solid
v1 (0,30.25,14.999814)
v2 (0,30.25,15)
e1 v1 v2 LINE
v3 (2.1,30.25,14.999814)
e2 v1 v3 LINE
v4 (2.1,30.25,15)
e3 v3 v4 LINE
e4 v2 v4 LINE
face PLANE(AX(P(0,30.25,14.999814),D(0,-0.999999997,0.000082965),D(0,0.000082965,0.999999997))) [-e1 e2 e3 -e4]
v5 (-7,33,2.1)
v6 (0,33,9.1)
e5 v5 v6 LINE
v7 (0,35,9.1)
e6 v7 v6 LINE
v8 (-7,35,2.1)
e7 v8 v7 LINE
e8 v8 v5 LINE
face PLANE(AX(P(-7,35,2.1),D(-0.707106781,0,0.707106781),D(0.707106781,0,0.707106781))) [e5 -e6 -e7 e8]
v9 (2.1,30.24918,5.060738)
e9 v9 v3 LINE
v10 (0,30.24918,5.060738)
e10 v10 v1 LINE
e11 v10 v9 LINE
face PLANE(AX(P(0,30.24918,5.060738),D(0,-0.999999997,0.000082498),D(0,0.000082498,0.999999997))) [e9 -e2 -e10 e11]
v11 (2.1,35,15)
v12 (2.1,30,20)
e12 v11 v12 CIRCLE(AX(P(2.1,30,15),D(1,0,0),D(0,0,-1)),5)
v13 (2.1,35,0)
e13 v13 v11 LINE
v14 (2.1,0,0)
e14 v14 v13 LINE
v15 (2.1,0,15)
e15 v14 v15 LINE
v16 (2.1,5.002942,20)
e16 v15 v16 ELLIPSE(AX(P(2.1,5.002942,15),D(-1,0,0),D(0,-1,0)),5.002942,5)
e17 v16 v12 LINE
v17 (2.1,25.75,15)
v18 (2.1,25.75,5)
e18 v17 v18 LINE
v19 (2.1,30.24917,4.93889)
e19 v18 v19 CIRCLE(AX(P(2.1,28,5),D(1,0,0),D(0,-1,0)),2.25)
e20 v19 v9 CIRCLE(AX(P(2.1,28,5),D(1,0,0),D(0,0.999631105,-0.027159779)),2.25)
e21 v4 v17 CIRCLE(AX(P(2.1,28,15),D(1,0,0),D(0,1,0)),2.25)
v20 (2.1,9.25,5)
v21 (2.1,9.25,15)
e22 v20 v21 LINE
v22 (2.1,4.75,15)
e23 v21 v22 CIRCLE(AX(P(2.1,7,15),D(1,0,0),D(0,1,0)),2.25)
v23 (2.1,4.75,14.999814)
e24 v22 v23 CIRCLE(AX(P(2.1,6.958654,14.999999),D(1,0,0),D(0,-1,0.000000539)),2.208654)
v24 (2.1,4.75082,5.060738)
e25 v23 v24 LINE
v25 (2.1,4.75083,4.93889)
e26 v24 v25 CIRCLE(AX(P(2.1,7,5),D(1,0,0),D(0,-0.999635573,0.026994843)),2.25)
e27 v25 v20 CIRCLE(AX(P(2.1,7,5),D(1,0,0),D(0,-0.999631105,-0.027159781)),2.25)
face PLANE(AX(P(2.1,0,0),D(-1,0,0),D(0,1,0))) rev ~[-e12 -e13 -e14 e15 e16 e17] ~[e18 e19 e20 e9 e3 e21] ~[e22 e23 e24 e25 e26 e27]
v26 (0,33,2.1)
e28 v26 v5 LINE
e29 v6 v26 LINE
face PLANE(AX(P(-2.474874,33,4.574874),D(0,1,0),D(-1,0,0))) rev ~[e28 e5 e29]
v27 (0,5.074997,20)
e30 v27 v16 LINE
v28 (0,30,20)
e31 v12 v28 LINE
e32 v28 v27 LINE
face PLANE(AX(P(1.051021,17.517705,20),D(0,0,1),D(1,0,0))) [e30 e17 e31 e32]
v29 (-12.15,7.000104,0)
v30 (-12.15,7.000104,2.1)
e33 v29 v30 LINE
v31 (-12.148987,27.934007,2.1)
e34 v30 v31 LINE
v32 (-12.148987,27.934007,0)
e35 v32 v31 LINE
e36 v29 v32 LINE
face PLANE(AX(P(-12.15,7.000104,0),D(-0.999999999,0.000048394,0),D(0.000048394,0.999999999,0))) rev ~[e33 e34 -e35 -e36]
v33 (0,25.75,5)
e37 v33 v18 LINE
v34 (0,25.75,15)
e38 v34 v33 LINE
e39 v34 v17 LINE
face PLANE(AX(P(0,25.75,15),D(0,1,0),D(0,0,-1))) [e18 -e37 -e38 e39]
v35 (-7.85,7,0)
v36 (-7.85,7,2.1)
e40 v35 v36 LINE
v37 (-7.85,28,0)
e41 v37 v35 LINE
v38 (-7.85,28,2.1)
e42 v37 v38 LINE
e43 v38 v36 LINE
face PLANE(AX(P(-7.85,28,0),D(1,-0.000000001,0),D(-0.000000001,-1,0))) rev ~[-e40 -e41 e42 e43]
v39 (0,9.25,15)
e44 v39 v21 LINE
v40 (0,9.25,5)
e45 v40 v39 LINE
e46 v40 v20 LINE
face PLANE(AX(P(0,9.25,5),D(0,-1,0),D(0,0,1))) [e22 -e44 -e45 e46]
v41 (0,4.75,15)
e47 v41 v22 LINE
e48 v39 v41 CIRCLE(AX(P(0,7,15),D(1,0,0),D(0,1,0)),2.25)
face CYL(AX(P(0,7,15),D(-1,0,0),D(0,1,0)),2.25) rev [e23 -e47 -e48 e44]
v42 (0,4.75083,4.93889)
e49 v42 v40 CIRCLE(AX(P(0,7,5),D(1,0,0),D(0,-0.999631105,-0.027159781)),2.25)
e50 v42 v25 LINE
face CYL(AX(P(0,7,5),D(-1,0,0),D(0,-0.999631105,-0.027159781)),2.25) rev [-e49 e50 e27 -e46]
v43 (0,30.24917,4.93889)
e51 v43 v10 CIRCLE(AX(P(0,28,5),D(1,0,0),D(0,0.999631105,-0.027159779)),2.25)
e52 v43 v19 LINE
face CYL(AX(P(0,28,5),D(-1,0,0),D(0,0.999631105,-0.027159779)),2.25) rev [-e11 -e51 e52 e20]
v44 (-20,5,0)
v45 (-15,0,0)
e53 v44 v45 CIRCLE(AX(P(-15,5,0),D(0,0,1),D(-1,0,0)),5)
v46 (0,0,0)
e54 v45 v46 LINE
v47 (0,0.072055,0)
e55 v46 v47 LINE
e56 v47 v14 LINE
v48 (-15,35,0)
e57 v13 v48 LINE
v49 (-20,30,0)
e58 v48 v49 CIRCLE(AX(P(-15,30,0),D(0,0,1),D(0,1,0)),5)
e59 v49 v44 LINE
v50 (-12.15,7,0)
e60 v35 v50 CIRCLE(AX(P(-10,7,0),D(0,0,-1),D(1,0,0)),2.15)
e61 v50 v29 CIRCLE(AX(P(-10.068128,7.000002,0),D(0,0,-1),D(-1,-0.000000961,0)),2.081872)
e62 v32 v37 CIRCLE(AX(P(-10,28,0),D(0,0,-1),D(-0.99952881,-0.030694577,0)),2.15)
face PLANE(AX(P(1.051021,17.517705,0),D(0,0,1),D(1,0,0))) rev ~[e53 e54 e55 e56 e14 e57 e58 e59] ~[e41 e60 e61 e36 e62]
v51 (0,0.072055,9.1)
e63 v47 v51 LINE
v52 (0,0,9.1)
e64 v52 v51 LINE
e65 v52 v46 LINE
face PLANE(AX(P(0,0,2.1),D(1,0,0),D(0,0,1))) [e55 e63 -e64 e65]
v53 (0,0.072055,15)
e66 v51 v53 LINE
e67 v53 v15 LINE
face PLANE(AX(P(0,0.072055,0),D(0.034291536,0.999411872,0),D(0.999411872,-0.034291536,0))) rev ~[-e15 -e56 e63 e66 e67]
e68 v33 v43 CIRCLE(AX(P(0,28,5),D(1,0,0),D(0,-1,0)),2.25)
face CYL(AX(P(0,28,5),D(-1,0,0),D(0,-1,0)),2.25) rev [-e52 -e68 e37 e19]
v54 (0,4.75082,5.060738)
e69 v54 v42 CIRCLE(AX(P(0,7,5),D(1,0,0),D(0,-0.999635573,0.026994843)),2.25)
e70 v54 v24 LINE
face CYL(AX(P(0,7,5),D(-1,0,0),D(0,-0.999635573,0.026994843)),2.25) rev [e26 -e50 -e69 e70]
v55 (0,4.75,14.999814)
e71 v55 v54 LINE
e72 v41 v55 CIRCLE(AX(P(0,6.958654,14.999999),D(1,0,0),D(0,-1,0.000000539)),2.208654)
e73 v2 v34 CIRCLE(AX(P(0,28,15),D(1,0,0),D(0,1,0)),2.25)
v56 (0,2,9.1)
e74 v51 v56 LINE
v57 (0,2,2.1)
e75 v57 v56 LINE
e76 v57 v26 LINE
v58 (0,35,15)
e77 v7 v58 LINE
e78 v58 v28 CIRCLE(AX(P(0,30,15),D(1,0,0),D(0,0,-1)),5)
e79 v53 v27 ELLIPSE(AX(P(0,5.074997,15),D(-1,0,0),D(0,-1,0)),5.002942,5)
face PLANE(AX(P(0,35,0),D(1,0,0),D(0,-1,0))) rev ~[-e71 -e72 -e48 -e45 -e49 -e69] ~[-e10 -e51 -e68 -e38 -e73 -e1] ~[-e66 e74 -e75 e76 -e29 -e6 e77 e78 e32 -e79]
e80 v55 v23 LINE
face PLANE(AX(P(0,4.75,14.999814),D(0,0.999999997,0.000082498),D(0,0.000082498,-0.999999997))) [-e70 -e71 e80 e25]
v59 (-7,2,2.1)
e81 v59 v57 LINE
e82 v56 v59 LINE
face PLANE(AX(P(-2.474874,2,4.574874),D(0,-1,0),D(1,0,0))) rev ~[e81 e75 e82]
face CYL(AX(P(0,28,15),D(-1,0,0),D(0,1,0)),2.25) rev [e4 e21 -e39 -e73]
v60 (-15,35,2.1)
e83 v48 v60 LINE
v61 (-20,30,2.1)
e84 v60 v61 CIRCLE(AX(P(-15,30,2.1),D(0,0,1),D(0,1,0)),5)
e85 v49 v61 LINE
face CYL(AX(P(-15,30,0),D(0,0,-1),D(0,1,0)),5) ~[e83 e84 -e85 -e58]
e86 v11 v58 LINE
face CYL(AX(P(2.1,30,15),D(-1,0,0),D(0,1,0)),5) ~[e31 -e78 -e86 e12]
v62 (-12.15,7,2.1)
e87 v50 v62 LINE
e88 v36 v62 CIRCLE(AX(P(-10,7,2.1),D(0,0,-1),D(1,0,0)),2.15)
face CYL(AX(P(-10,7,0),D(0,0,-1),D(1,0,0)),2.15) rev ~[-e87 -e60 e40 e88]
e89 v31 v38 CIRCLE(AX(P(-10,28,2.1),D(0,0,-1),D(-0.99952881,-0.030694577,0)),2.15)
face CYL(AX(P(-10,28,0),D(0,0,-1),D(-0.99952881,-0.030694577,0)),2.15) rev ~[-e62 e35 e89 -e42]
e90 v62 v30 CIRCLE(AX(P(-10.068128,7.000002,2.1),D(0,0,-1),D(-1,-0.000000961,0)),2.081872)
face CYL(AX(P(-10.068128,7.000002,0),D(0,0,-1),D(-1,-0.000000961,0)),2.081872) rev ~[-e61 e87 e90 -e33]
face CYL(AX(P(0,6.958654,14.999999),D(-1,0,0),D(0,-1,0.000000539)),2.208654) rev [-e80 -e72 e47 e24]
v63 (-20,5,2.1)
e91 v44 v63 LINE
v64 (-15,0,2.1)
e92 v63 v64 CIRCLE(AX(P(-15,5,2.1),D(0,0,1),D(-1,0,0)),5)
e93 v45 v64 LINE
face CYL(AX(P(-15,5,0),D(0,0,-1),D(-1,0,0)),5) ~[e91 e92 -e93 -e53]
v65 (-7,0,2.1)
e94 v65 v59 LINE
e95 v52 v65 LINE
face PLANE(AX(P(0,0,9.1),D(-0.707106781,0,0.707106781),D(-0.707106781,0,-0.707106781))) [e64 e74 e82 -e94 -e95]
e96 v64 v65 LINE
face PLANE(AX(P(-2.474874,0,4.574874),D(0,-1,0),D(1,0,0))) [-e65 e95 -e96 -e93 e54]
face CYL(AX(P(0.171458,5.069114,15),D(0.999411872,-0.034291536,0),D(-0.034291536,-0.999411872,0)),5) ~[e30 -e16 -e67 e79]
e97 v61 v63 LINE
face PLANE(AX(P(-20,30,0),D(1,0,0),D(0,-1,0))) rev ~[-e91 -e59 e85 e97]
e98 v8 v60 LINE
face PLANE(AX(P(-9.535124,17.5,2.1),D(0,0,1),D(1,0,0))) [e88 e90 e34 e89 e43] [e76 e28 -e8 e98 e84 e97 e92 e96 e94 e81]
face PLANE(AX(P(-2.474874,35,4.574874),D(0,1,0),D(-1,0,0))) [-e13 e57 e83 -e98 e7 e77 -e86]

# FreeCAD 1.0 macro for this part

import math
import FreeCAD as App
import Part
import Sketcher
Q = App.Units.Quantity


def edges_at(feature, points):
    """Names of the edges that pass closest to the given points."""
    edges = feature.Shape.Edges
    near = lambda p: min(range(len(edges)), key=lambda i: edges[i].distToShape(Part.Vertex(*p))[0])
    return sorted({f"Edge{near(p) + 1}" for p in points})

doc = App.newDocument("Part")
body = doc.addObject("PartDesign::Body", "Body")

# Sketch on XY plane
sketch1 = body.newObject("Sketcher::SketchObject", "Sketch")
sketch1.AttachmentSupport = (doc.getObject("XY_Plane"), [""])
sketch1.MapMode = "FlatFace"
sketch1.addGeometry(Part.LineSegment(App.Vector(-15, 0, 0), App.Vector(0, 0, 0)), False)
sketch1.addGeometry(Part.LineSegment(App.Vector(0, 0, 0), App.Vector(0, 35, 0)), False)
sketch1.addGeometry(Part.LineSegment(App.Vector(0, 35, 0), App.Vector(-15, 35, 0)), False)
sketch1.addGeometry(Part.ArcOfCircle(Part.Circle(App.Vector(-15, 30, 0), App.Vector(0, 0, 1), 5), math.radians(90), math.radians(180)), False)
sketch1.addGeometry(Part.LineSegment(App.Vector(-20, 30, 0), App.Vector(-20, 5, 0)), False)
sketch1.addGeometry(Part.ArcOfCircle(Part.Circle(App.Vector(-15, 5, 0), App.Vector(0, 0, 1), 5), math.radians(180), math.radians(270)), False)
sketch1.addGeometry(Part.LineSegment(App.Vector(-12.15, 7.000104, 0), App.Vector(-12.148987, 27.934007, 0)), False)
sketch1.addGeometry(Part.ArcOfCircle(Part.Circle(App.Vector(-10, 28, 0), App.Vector(0, 0, 1), 2.15), math.radians(0), math.radians(181.758946)), False)
sketch1.addGeometry(Part.LineSegment(App.Vector(-7.85, 28, 0), App.Vector(-7.85, 7, 0)), False)
sketch1.addGeometry(Part.ArcOfCircle(Part.Circle(App.Vector(-10, 7, 0), App.Vector(0, 0, 1), 2.15), math.radians(180), math.radians(360)), False)
sketch1.addGeometry(Part.ArcOfCircle(Part.Circle(App.Vector(-10.068128, 7.000002, 0), App.Vector(0, 0, 1), 2.081872), math.radians(179.997192), math.radians(180.000055)), False)
sketch1.addConstraint(Sketcher.Constraint("Coincident", 0, 2, 1, 1))
sketch1.addConstraint(Sketcher.Constraint("Coincident", 1, 2, 2, 1))
sketch1.addConstraint(Sketcher.Constraint("Tangent", 2, 2, 3, 1))
sketch1.addConstraint(Sketcher.Constraint("Tangent", 3, 2, 4, 1))
sketch1.addConstraint(Sketcher.Constraint("Tangent", 4, 2, 5, 1))
sketch1.addConstraint(Sketcher.Constraint("Tangent", 5, 2, 0, 1))
sketch1.addConstraint(Sketcher.Constraint("Coincident", 6, 2, 7, 2))
sketch1.addConstraint(Sketcher.Constraint("Tangent", 7, 1, 8, 1))
sketch1.addConstraint(Sketcher.Constraint("Tangent", 8, 2, 9, 2))
sketch1.addConstraint(Sketcher.Constraint("Tangent", 9, 1, 10, 2))
sketch1.addConstraint(Sketcher.Constraint("Tangent", 10, 1, 6, 1))
sketch1.addConstraint(Sketcher.Constraint("Horizontal", 0))
sketch1.addConstraint(Sketcher.Constraint("Vertical", 1))
sketch1.addConstraint(Sketcher.Constraint("Horizontal", 2))
sketch1.addConstraint(Sketcher.Constraint("Vertical", 4))
sketch1.addConstraint(Sketcher.Constraint("Vertical", 8))
sketch1.addConstraint(Sketcher.Constraint("Coincident", 0, 2, -1, 1))
sketch1.addConstraint(Sketcher.Constraint("Equal", 3, 5))
sketch1.addConstraint(Sketcher.Constraint("Equal", 7, 9))
sketch1.addConstraint(Sketcher.Constraint("Horizontal", 8, 2, 9, 1))
sketch1.addConstraint(Sketcher.Constraint("Radius", 3, Q("5 mm")))
sketch1.addConstraint(Sketcher.Constraint("DistanceX", 0, 1, 0, 2, Q("15 mm")))
sketch1.addConstraint(Sketcher.Constraint("DistanceY", 1, 1, 1, 2, Q("35 mm")))
sketch1.addConstraint(Sketcher.Constraint("DistanceY", 8, 2, 8, 1, Q("21 mm")))
sketch1.addConstraint(Sketcher.Constraint("Radius", 7, Q("2.15 mm")))
sketch1.addConstraint(Sketcher.Constraint("DistanceX", 7, 3, -1, 1, Q("10 mm")))
sketch1.addConstraint(Sketcher.Constraint("DistanceY", -1, 1, 7, 3, Q("28 mm")))
sketch1.addConstraint(Sketcher.Constraint("Radius", 10, Q("2.081872 mm")))
sketch1.addConstraint(Sketcher.Constraint("Distance", 6, Q("20.933903 mm")))
pad1 = body.newObject("PartDesign::Pad", "Pad")
pad1.Profile = sketch1
pad1.Length = 2.1

# Sketch on XY plane
sketch2 = body.newObject("Sketcher::SketchObject", "Sketch001")
sketch2.AttachmentSupport = (doc.getObject("XY_Plane"), [""])
sketch2.MapMode = "FlatFace"
sketch2.addGeometry(Part.LineSegment(App.Vector(0, 35, 0), App.Vector(0, 0.072055, 0)), False)
sketch2.addGeometry(Part.LineSegment(App.Vector(0, 0.072055, 0), App.Vector(2.1, 0, 0)), False)
sketch2.addGeometry(Part.LineSegment(App.Vector(2.1, 0, 0), App.Vector(2.1, 35, 0)), False)
sketch2.addGeometry(Part.LineSegment(App.Vector(2.1, 35, 0), App.Vector(0, 35, 0)), False)
sketch2.addConstraint(Sketcher.Constraint("Coincident", 0, 2, 1, 1))
sketch2.addConstraint(Sketcher.Constraint("Coincident", 1, 2, 2, 1))
sketch2.addConstraint(Sketcher.Constraint("Coincident", 2, 2, 3, 1))
sketch2.addConstraint(Sketcher.Constraint("Coincident", 3, 2, 0, 1))
sketch2.addConstraint(Sketcher.Constraint("Vertical", 0))
sketch2.addConstraint(Sketcher.Constraint("Vertical", 2))
sketch2.addConstraint(Sketcher.Constraint("Horizontal", 3))
sketch2.addConstraint(Sketcher.Constraint("PointOnObject", 0, 2, -2))
sketch2.addConstraint(Sketcher.Constraint("PointOnObject", 1, 2, -1))
sketch2.addConstraint(Sketcher.Constraint("DistanceY", 2, 1, 2, 2, Q("35 mm")))
sketch2.addConstraint(Sketcher.Constraint("DistanceX", 3, 2, 3, 1, Q("2.1 mm")))
sketch2.addConstraint(Sketcher.Constraint("DistanceY", 0, 2, 0, 1, Q("34.927945 mm")))
pad2 = body.newObject("PartDesign::Pad", "Pad001")
pad2.Profile = sketch2
pad2.Length = 20

# Sketch on YZ plane
sketch3 = body.newObject("Sketcher::SketchObject", "Sketch002")
sketch3.AttachmentSupport = (doc.getObject("YZ_Plane"), [""])
sketch3.MapMode = "FlatFace"
sketch3.addGeometry(Part.LineSegment(App.Vector(9.25, 5, 0), App.Vector(9.25, 15, 0)), False)
sketch3.addGeometry(Part.ArcOfCircle(Part.Circle(App.Vector(7, 15, 0), App.Vector(0, 0, 1), 2.25), math.radians(0), math.radians(180)), False)
sketch3.addGeometry(Part.ArcOfCircle(Part.Circle(App.Vector(6.958654, 14.999999, 0), App.Vector(0, 0, 1), 2.208654), math.radians(179.999969), math.radians(180.004784)), False)
sketch3.addGeometry(Part.LineSegment(App.Vector(4.75, 14.999814, 0), App.Vector(4.75082, 5.060738, 0)), False)
sketch3.addGeometry(Part.ArcOfCircle(Part.Circle(App.Vector(7, 5, 0), App.Vector(0, 0, 1), 2.25), math.radians(178.453121), math.radians(181.556332)), False)
sketch3.addGeometry(Part.ArcOfCircle(Part.Circle(App.Vector(7, 5, 0), App.Vector(0, 0, 1), 2.25), math.radians(-178.443668), math.radians(0)), False)
sketch3.addGeometry(Part.ArcOfCircle(Part.Circle(App.Vector(28, 5, 0), App.Vector(0, 0, 1), 2.25), math.radians(180), math.radians(358.443668)), False)
sketch3.addGeometry(Part.ArcOfCircle(Part.Circle(App.Vector(28, 5, 0), App.Vector(0, 0, 1), 2.25), math.radians(-1.556332), math.radians(1.546879)), False)
sketch3.addGeometry(Part.LineSegment(App.Vector(30.24918, 5.060738, 0), App.Vector(30.25, 14.999814, 0)), False)
sketch3.addGeometry(Part.LineSegment(App.Vector(30.25, 14.999814, 0), App.Vector(30.25, 15, 0)), False)
sketch3.addGeometry(Part.ArcOfCircle(Part.Circle(App.Vector(28, 15, 0), App.Vector(0, 0, 1), 2.25), math.radians(0), math.radians(180)), False)
sketch3.addGeometry(Part.LineSegment(App.Vector(25.75, 15, 0), App.Vector(25.75, 5, 0)), False)
sketch3.addConstraint(Sketcher.Constraint("Coincident", 0, 2, 1, 1))
sketch3.addConstraint(Sketcher.Constraint("Coincident", 1, 2, 2, 1))
sketch3.addConstraint(Sketcher.Constraint("Coincident", 2, 2, 3, 1))
sketch3.addConstraint(Sketcher.Constraint("Coincident", 3, 2, 4, 1))
sketch3.addConstraint(Sketcher.Constraint("Coincident", 4, 2, 5, 1))
sketch3.addConstraint(Sketcher.Constraint("Coincident", 5, 2, 0, 1))
sketch3.addConstraint(Sketcher.Constraint("Coincident", 6, 2, 7, 1))
sketch3.addConstraint(Sketcher.Constraint("Coincident", 7, 2, 8, 1))
sketch3.addConstraint(Sketcher.Constraint("Coincident", 8, 2, 9, 1))
sketch3.addConstraint(Sketcher.Constraint("Coincident", 9, 2, 10, 1))
sketch3.addConstraint(Sketcher.Constraint("Coincident", 10, 2, 11, 1))
sketch3.addConstraint(Sketcher.Constraint("Coincident", 11, 2, 6, 1))
sketch3.addConstraint(Sketcher.Constraint("Vertical", 0))
sketch3.addConstraint(Sketcher.Constraint("Vertical", 9))
sketch3.addConstraint(Sketcher.Constraint("Vertical", 11))
sketch3.addConstraint(Sketcher.Constraint("Coincident", 5, 3, 4, 3))
sketch3.addConstraint(Sketcher.Constraint("Coincident", 7, 3, 6, 3))
sketch3.addConstraint(Sketcher.Constraint("DistanceY", 0, 1, 0, 2, Q("10 mm")))
sketch3.addConstraint(Sketcher.Constraint("DistanceY", 11, 2, 11, 1, Q("10 mm")))
sketch3.addConstraint(Sketcher.Constraint("Radius", 1, Q("2.25 mm")))
sketch3.addConstraint(Sketcher.Constraint("Radius", 4, Q("2.25 mm")))
sketch3.addConstraint(Sketcher.Constraint("Radius", 6, Q("2.25 mm")))
sketch3.addConstraint(Sketcher.Constraint("Radius", 10, Q("2.25 mm")))
sketch3.addConstraint(Sketcher.Constraint("DistanceX", -1, 1, 1, 3, Q("7 mm")))
sketch3.addConstraint(Sketcher.Constraint("DistanceY", -1, 1, 1, 3, Q("15 mm")))
sketch3.addConstraint(Sketcher.Constraint("DistanceY", -1, 1, 2, 3, Q("14.999999 mm")))
sketch3.addConstraint(Sketcher.Constraint("DistanceY", -1, 1, 4, 3, Q("5 mm")))
sketch3.addConstraint(Sketcher.Constraint("DistanceX", -1, 1, 6, 3, Q("28 mm")))
sketch3.addConstraint(Sketcher.Constraint("DistanceY", -1, 1, 6, 3, Q("5 mm")))
sketch3.addConstraint(Sketcher.Constraint("DistanceY", -1, 1, 10, 3, Q("15 mm")))
sketch3.addConstraint(Sketcher.Constraint("DistanceY", -1, 1, 0, 2, Q("15 mm")))
sketch3.addConstraint(Sketcher.Constraint("DistanceY", -1, 1, 1, 2, Q("15 mm")))
sketch3.addConstraint(Sketcher.Constraint("DistanceY", -1, 1, 9, 2, Q("15 mm")))
sketch3.addConstraint(Sketcher.Constraint("DistanceY", -1, 1, 10, 2, Q("15 mm")))
sketch3.addConstraint(Sketcher.Constraint("Radius", 2, Q("2.208654 mm")))
sketch3.addConstraint(Sketcher.Constraint("DistanceY", 9, 1, 9, 2, Q("0.000186 mm")))
sketch3.addConstraint(Sketcher.Constraint("DistanceX", -1, 1, 3, 2, Q("4.75082 mm")))
sketch3.addConstraint(Sketcher.Constraint("DistanceX", -1, 1, 4, 2, Q("4.75083 mm")))
sketch3.addConstraint(Sketcher.Constraint("DistanceX", -1, 1, 6, 2, Q("30.24917 mm")))
sketch3.addConstraint(Sketcher.Constraint("DistanceX", -1, 1, 7, 2, Q("30.24918 mm")))
sketch3.addConstraint(Sketcher.Constraint("Distance", 3, Q("9.939076 mm")))
pocket1 = body.newObject("PartDesign::Pocket", "Pocket")
pocket1.Profile = sketch3
pocket1.Type = "ThroughAll"
pocket1.Reversed = True
doc.recompute()

fillet = body.newObject("PartDesign::Fillet", "Fillet")
fillet.Base = (pocket1, edges_at(pocket1, [(1.05, 35, 20), (1.05, 0.036, 20)]))
fillet.Radius = 5

# Sketch on XZ plane
sketch4 = body.newObject("Sketcher::SketchObject", "Sketch003")
sketch4.AttachmentSupport = (doc.getObject("XZ_Plane"), [""])
sketch4.MapMode = "FlatFace"
sketch4.addGeometry(Part.LineSegment(App.Vector(-7, 2.1, 0), App.Vector(0, 2.1, 0)), False)
sketch4.addGeometry(Part.LineSegment(App.Vector(0, 2.1, 0), App.Vector(0, 9.1, 0)), False)
sketch4.addGeometry(Part.LineSegment(App.Vector(0, 9.1, 0), App.Vector(-7, 2.1, 0)), False)
sketch4.addConstraint(Sketcher.Constraint("Coincident", 0, 2, 1, 1))
sketch4.addConstraint(Sketcher.Constraint("Coincident", 1, 2, 2, 1))
sketch4.addConstraint(Sketcher.Constraint("Coincident", 2, 2, 0, 1))
sketch4.addConstraint(Sketcher.Constraint("Horizontal", 0))
sketch4.addConstraint(Sketcher.Constraint("Vertical", 1))
sketch4.addConstraint(Sketcher.Constraint("PointOnObject", 0, 2, -2))
sketch4.addConstraint(Sketcher.Constraint("Equal", 0, 1))
sketch4.addConstraint(Sketcher.Constraint("DistanceX", 0, 1, 0, 2, Q("7 mm")))
sketch4.addConstraint(Sketcher.Constraint("DistanceY", -1, 1, 0, 2, Q("2.1 mm")))
pad3 = body.newObject("PartDesign::Pad", "Pad002")
pad3.Profile = sketch4
pad3.Length = 2
pad3.Reversed = True

# Sketch on XZ plane
sketch5 = body.newObject("Sketcher::SketchObject", "Sketch004")
sketch5.AttachmentSupport = (doc.getObject("XZ_Plane"), [""])
sketch5.MapMode = "FlatFace"
sketch5.AttachmentOffset = App.Placement(App.Vector(0, 0, -35), App.Rotation())
sketch5.addGeometry(Part.LineSegment(App.Vector(0, 9.1, 0), App.Vector(0, 2.1, 0)), False)
sketch5.addGeometry(Part.LineSegment(App.Vector(0, 2.1, 0), App.Vector(-7, 2.1, 0)), False)
sketch5.addGeometry(Part.LineSegment(App.Vector(-7, 2.1, 0), App.Vector(0, 9.1, 0)), False)
sketch5.addConstraint(Sketcher.Constraint("Coincident", 0, 2, 1, 1))
sketch5.addConstraint(Sketcher.Constraint("Coincident", 1, 2, 2, 1))
sketch5.addConstraint(Sketcher.Constraint("Coincident", 2, 2, 0, 1))
sketch5.addConstraint(Sketcher.Constraint("Vertical", 0))
sketch5.addConstraint(Sketcher.Constraint("Horizontal", 1))
sketch5.addConstraint(Sketcher.Constraint("PointOnObject", 0, 2, -2))
sketch5.addConstraint(Sketcher.Constraint("Equal", 1, 0))
sketch5.addConstraint(Sketcher.Constraint("DistanceX", 1, 2, 1, 1, Q("7 mm")))
sketch5.addConstraint(Sketcher.Constraint("DistanceY", -1, 1, 0, 2, Q("2.1 mm")))
pad4 = body.newObject("PartDesign::Pad", "Pad003")
pad4.Profile = sketch5
pad4.Length = 2

doc.recompute()
